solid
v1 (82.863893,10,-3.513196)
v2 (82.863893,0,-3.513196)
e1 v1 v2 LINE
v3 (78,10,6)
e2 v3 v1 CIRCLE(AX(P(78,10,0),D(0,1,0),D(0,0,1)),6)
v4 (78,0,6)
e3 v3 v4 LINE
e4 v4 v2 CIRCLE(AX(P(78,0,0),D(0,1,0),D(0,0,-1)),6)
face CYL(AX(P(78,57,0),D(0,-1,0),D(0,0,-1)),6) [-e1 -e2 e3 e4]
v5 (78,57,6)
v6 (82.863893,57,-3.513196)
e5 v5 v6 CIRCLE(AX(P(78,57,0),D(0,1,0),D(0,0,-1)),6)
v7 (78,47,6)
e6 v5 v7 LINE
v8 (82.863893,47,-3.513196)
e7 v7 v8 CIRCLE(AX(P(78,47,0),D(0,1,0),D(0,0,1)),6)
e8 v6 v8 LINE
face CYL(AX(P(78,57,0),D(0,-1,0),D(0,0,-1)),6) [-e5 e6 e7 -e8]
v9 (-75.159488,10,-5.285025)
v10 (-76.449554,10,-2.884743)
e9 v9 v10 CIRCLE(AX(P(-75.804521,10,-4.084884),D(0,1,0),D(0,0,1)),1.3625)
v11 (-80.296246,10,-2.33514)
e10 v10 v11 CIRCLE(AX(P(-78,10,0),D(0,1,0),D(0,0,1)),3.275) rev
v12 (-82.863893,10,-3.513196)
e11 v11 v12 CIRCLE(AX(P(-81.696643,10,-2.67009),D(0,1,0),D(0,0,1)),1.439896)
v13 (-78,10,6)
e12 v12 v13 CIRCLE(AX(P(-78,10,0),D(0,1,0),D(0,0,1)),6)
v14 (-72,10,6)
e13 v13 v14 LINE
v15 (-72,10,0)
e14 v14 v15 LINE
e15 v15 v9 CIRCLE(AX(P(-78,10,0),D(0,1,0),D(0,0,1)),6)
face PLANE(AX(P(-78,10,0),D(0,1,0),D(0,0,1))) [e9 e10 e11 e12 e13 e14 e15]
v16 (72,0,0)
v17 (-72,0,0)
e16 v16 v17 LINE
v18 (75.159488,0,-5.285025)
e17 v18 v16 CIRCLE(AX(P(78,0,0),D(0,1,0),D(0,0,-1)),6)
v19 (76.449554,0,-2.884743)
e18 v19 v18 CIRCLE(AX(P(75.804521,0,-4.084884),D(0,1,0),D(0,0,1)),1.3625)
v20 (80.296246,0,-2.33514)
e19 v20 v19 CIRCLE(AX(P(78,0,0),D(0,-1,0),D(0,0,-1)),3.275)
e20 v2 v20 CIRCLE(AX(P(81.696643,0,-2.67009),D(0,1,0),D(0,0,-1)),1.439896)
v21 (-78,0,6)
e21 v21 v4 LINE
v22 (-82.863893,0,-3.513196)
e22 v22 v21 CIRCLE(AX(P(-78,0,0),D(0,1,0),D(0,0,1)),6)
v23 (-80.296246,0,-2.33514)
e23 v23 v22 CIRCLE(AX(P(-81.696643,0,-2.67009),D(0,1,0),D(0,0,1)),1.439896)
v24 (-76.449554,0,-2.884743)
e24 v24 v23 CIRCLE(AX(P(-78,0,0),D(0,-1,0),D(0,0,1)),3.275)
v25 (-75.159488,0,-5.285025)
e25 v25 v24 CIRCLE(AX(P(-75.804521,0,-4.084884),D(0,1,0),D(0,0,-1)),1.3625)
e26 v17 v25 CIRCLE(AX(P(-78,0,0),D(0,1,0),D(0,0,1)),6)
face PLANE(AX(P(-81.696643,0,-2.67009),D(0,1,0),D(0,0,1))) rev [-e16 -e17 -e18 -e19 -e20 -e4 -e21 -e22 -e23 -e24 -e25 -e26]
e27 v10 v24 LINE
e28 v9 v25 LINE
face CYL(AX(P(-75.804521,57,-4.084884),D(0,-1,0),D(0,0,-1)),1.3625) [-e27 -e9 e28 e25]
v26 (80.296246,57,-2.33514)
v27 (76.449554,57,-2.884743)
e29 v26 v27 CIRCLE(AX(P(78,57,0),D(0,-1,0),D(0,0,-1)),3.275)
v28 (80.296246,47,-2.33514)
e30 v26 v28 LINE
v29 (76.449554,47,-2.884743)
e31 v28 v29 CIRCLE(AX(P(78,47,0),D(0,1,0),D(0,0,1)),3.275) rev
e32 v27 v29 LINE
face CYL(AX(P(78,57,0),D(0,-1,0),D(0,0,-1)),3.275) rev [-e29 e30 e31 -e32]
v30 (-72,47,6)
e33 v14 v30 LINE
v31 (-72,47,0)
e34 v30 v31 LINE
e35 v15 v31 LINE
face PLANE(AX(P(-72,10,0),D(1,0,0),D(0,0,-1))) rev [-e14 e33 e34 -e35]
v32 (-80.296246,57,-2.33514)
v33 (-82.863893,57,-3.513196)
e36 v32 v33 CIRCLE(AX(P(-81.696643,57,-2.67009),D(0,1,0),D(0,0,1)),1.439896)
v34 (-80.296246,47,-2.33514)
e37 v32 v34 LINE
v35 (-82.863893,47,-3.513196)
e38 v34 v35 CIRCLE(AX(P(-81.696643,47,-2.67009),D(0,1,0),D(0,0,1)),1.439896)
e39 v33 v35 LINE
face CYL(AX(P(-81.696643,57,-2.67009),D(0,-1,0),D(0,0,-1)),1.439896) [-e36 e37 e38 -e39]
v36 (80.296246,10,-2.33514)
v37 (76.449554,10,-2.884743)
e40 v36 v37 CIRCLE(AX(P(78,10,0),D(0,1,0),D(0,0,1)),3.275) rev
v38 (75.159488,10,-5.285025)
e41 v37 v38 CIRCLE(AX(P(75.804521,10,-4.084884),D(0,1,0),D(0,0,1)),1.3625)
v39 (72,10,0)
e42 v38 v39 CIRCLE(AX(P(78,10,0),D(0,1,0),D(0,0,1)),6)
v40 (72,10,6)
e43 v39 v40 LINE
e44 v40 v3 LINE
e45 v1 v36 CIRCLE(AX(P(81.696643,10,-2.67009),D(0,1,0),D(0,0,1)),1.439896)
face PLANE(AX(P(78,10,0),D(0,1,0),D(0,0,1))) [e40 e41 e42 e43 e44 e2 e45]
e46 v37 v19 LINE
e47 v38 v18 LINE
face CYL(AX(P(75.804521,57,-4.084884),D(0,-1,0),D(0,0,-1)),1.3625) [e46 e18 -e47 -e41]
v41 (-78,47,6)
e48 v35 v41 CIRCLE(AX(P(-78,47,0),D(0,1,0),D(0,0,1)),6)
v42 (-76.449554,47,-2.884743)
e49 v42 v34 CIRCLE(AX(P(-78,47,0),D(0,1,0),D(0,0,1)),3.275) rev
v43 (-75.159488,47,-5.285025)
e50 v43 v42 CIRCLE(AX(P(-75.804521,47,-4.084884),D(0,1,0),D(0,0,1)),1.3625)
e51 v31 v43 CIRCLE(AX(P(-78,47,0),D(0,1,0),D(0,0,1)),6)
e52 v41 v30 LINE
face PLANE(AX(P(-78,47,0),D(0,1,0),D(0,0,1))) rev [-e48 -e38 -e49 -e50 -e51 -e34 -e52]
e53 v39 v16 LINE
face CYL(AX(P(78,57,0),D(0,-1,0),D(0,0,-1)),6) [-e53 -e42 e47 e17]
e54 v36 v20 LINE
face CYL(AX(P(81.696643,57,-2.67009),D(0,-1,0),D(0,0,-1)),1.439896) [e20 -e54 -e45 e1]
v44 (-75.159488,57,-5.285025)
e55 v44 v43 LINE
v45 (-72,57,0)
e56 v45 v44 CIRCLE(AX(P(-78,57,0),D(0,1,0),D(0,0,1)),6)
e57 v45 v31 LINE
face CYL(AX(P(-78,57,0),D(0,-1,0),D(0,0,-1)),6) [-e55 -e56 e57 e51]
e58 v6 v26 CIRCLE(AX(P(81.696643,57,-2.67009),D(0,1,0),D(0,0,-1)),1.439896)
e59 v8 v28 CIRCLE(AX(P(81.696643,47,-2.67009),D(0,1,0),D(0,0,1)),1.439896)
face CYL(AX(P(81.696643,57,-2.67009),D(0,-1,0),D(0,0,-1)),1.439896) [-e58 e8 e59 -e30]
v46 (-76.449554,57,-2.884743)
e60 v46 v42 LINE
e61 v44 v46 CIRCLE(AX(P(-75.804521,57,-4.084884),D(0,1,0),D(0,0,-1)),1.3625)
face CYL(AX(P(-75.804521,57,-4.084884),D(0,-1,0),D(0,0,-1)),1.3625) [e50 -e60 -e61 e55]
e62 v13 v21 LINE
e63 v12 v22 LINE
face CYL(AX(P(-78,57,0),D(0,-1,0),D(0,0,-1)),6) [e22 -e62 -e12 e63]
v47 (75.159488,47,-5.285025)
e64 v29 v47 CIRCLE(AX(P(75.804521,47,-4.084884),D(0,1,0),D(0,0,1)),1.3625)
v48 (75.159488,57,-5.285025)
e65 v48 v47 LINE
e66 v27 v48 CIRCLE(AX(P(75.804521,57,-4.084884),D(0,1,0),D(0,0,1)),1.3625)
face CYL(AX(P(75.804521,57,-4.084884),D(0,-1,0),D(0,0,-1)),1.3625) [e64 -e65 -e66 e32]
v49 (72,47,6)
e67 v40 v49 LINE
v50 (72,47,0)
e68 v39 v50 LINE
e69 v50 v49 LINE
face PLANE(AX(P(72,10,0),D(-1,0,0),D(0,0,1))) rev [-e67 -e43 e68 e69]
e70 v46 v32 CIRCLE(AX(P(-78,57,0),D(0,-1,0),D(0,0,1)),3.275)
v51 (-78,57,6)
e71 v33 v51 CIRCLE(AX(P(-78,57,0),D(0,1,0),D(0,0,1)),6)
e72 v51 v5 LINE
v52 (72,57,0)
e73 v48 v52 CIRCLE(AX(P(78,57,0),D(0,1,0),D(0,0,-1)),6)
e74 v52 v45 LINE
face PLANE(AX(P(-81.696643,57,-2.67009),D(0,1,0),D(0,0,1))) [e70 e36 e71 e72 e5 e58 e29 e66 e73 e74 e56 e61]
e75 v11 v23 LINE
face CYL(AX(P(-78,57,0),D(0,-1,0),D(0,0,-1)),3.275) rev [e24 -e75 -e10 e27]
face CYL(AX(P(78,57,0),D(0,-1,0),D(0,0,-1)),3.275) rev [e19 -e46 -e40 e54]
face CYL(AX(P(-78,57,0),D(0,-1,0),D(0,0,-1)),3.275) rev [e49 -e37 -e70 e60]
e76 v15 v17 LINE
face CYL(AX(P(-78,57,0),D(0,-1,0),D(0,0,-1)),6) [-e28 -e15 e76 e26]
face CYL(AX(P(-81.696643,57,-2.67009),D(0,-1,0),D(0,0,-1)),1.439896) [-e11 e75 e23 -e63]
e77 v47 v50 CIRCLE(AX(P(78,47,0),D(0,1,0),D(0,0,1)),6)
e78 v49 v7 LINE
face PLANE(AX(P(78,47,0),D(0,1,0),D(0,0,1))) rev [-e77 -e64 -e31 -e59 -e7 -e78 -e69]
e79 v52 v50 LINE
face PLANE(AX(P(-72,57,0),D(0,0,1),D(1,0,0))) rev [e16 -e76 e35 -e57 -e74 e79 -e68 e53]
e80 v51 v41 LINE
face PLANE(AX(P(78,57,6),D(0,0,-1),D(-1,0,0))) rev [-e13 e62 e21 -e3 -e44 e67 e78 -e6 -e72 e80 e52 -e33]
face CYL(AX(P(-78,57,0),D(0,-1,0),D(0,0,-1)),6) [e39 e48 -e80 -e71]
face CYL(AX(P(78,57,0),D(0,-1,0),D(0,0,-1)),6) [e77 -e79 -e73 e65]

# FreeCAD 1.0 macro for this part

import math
import FreeCAD as App
import Part
import Sketcher
from FreeCAD import Vector
Q = App.Units.Quantity

doc = App.newDocument("Part")
body = doc.addObject("PartDesign::Body", "Body")

# Sketch on XZ plane
sketch1 = body.newObject("Sketcher::SketchObject", "Sketch")
sketch1.AttachmentSupport = (doc.getObject("XZ_Plane"), [""])
sketch1.MapMode = "FlatFace"
sketch1.addGeometry([
    Part.LineSegment(Vector(72, 0, 0), Vector(-72, 0, 0)),  # 0
    Part.ArcOfCircle(Part.Circle(Vector(-78, 0, 0), Vector(0, 0, 1), 6), math.radians(-61.743555), math.radians(0)),  # 1
    Part.ArcOfCircle(Part.Circle(Vector(-75.804521, -4.084884, 0), Vector(0, 0, 1), 1.3625), math.radians(118.256445), math.radians(298.256445)),  # 2
    Part.ArcOfCircle(Part.Circle(Vector(-78, 0, 0), Vector(0, 0, 1), 3.275), math.radians(-61.743555), math.radians(225.481148)),  # 3
    Part.ArcOfCircle(Part.Circle(Vector(-81.696643, -2.67009, 0), Vector(0, 0, 1), 1.439896), math.radians(-144.159368), math.radians(13.451429)),  # 4
    Part.ArcOfCircle(Part.Circle(Vector(-78, 0, 0), Vector(0, 0, 1), 6), math.radians(90), math.radians(215.840632)),  # 5
    Part.LineSegment(Vector(-78, 6, 0), Vector(78, 6, 0)),  # 6
    Part.ArcOfCircle(Part.Circle(Vector(78, 0, 0), Vector(0, 0, 1), 6), math.radians(-35.840632), math.radians(90)),  # 7
    Part.ArcOfCircle(Part.Circle(Vector(81.696643, -2.67009, 0), Vector(0, 0, 1), 1.439896), math.radians(166.548571), math.radians(324.159368)),  # 8
    Part.ArcOfCircle(Part.Circle(Vector(78, 0, 0), Vector(0, 0, 1), 3.275), math.radians(-45.481148), math.radians(241.743555)),  # 9
    Part.ArcOfCircle(Part.Circle(Vector(75.804521, -4.084884, 0), Vector(0, 0, 1), 1.3625), math.radians(-118.256445), math.radians(61.743555)),  # 10
    Part.ArcOfCircle(Part.Circle(Vector(78, 0, 0), Vector(0, 0, 1), 6), math.radians(-180), math.radians(-118.256445)),  # 11
], False)
sketch1.addConstraint([
    Sketcher.Constraint("Coincident", 0, 2, 1, 2),
    Sketcher.Constraint("Tangent", 1, 1, 2, 2),
    Sketcher.Constraint("Tangent", 2, 1, 3, 1),
    Sketcher.Constraint("Coincident", 3, 2, 4, 2),
    Sketcher.Constraint("Tangent", 4, 1, 5, 2),
    Sketcher.Constraint("Tangent", 5, 1, 6, 1),
    Sketcher.Constraint("Tangent", 6, 2, 7, 2),
    Sketcher.Constraint("Tangent", 7, 1, 8, 2),
    Sketcher.Constraint("Coincident", 8, 1, 9, 1),
    Sketcher.Constraint("Tangent", 9, 2, 10, 2),
    Sketcher.Constraint("Tangent", 10, 1, 11, 2),
    Sketcher.Constraint("Coincident", 11, 1, 0, 1),
    Sketcher.Constraint("Horizontal", 0),
    Sketcher.Constraint("Horizontal", 6),
    Sketcher.Constraint("Coincident", 3, 3, 1, 3),
    Sketcher.Constraint("Coincident", 5, 3, 1, 3),
    Sketcher.Constraint("Coincident", 9, 3, 7, 3),
    Sketcher.Constraint("Coincident", 11, 3, 7, 3),
    Sketcher.Constraint("Equal", 1, 5),
    Sketcher.Constraint("Equal", 5, 7),
    Sketcher.Constraint("Equal", 4, 8),
    Sketcher.Constraint("Equal", 3, 9),
    Sketcher.Constraint("Equal", 2, 10),
    Sketcher.Constraint("Symmetric", 1, 3, 7, 3, -1, 1),
    Sketcher.Constraint("PointOnObject", 0, 2, -1),
    Sketcher.Constraint("Horizontal", 4, 3, 8, 3),
    Sketcher.Constraint("Horizontal", 2, 3, 10, 3),
    Sketcher.Constraint("Radius", 1, Q("6 mm")),
    Sketcher.Constraint("DistanceX", 0, 2, 0, 1, Q("144 mm")),
    Sketcher.Constraint("Radius", 3, Q("3.275 mm")),
    Sketcher.Constraint("Radius", 4, Q("1.439896 mm")),
    Sketcher.Constraint("DistanceX", 2, 3, -1, 1, Q("75.804521 mm")),
    Sketcher.Constraint("DistanceY", 4, 3, -1, 1, Q("2.67009 mm")),
])
pad1 = body.newObject("PartDesign::Pad", "Pad")
pad1.Profile = sketch1
pad1.Length = 57
pad1.Reversed = True

# Sketch on XZ plane
sketch2 = body.newObject("Sketcher::SketchObject", "Sketch001")
sketch2.AttachmentSupport = (doc.getObject("XZ_Plane"), [""])
sketch2.MapMode = "FlatFace"
sketch2.AttachmentOffset = App.Placement(Vector(0, 0, -28.5), App.Rotation())
sketch2.addGeometry([
    Part.LineSegment(Vector(-72, 6, 0), Vector(-72, 0, 0)),  # 0
    Part.ArcOfCircle(Part.Circle(Vector(-78, 0, 0), Vector(0, 0, 1), 6), math.radians(90), math.radians(360)),  # 1
    Part.LineSegment(Vector(-78, 6, 0), Vector(-72, 6, 0)),  # 2
    Part.LineSegment(Vector(72, 0, 0), Vector(72, 6, 0)),  # 3
    Part.LineSegment(Vector(72, 6, 0), Vector(78, 6, 0)),  # 4
    Part.ArcOfCircle(Part.Circle(Vector(78, 0, 0), Vector(0, 0, 1), 6), math.radians(180), math.radians(450)),  # 5
], False)
sketch2.addConstraint([
    Sketcher.Constraint("Tangent", 0, 2, 1, 2),
    Sketcher.Constraint("Tangent", 1, 1, 2, 1),
    Sketcher.Constraint("Coincident", 2, 2, 0, 1),
    Sketcher.Constraint("Coincident", 3, 2, 4, 1),
    Sketcher.Constraint("Tangent", 4, 2, 5, 2),
    Sketcher.Constraint("Tangent", 5, 1, 3, 1),
    Sketcher.Constraint("Vertical", 0),
    Sketcher.Constraint("Horizontal", 2),
    Sketcher.Constraint("Vertical", 3),
    Sketcher.Constraint("Horizontal", 4),
    Sketcher.Constraint("Equal", 1, 5),
    Sketcher.Constraint("Symmetric", 1, 3, 5, 3, -1, 1),
    Sketcher.Constraint("PointOnObject", 1, 3, -1),
    Sketcher.Constraint("Radius", 1, Q("6 mm")),
    Sketcher.Constraint("DistanceX", 1, 3, -1, 1, Q("78 mm")),
])
pocket1 = body.newObject("PartDesign::Pocket", "Pocket")
pocket1.Profile = sketch2
pocket1.Length = 37
pocket1.Midplane = True

doc.recompute()
